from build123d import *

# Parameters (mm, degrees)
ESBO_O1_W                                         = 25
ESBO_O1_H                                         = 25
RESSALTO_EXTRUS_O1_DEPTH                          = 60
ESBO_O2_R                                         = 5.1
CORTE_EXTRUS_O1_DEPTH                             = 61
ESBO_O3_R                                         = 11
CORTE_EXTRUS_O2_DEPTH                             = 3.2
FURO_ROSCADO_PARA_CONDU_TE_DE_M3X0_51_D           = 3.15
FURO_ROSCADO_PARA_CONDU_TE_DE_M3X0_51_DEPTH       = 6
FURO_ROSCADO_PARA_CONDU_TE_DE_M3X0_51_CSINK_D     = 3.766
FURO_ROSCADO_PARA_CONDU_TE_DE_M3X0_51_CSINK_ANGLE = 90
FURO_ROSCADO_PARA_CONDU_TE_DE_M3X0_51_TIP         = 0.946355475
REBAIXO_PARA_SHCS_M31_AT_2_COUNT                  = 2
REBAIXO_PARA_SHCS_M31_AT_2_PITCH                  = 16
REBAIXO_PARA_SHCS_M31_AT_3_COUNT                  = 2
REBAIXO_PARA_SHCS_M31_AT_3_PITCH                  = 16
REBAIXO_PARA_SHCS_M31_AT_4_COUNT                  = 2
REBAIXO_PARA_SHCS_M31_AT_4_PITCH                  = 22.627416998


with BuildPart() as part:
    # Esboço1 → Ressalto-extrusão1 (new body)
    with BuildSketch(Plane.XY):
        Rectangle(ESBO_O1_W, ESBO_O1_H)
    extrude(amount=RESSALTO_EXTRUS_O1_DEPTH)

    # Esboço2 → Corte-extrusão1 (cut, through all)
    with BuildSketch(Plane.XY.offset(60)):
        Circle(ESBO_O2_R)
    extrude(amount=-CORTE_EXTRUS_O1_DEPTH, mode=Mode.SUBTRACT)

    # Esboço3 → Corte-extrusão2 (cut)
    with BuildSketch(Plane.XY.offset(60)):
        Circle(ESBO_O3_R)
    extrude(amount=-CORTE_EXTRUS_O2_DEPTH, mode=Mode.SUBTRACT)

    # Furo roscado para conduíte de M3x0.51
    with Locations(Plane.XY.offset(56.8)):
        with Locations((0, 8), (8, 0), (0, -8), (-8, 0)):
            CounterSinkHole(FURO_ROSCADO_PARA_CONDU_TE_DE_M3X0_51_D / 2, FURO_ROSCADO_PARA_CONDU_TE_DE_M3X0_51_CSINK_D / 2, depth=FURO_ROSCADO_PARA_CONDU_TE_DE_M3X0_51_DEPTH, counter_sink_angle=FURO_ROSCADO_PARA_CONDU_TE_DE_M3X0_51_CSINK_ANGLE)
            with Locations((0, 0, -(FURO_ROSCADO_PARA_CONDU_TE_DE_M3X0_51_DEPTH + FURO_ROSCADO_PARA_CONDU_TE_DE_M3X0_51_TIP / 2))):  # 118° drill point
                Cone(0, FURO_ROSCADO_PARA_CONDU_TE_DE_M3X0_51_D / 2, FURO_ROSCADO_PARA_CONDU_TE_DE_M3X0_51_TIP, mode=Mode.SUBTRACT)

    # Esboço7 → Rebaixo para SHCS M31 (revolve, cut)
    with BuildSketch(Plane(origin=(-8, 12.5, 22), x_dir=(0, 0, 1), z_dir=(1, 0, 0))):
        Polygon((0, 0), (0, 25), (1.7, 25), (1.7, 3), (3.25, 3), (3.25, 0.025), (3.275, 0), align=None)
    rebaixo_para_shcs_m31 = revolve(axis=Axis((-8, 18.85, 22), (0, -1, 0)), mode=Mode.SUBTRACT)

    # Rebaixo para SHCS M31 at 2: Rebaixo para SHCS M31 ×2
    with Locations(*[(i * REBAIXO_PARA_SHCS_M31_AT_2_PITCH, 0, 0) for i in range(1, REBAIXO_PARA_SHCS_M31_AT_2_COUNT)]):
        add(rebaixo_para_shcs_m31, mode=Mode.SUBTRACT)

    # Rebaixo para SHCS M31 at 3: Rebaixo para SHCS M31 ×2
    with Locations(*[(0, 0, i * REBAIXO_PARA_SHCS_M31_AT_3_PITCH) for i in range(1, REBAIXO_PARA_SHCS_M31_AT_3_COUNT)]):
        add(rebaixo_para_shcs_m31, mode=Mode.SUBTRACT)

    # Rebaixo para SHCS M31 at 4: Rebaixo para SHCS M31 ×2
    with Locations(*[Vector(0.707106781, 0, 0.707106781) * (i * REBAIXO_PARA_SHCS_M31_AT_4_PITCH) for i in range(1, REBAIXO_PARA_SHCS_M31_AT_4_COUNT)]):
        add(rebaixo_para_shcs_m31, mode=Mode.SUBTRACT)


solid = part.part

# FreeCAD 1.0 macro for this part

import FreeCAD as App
import Part
import Sketcher
from FreeCAD import Vector
Q = App.Units.Quantity

doc = App.newDocument("Part")
body = doc.addObject("PartDesign::Body", "Body")

sketch1 = body.newObject("Sketcher::SketchObject", "Sketch")
sketch1.AttachmentSupport = (doc.getObject("XY_Plane"), [""])
sketch1.MapMode = "FlatFace"
sketch1.addGeometry(Part.LineSegment(Vector(-12.5, 12.5, 0), Vector(-12.5, -12.5, 0)), False)
sketch1.addGeometry(Part.LineSegment(Vector(-12.5, -12.5, 0), Vector(12.5, -12.5, 0)), False)
sketch1.addGeometry(Part.LineSegment(Vector(12.5, -12.5, 0), Vector(12.5, 12.5, 0)), False)
sketch1.addGeometry(Part.LineSegment(Vector(12.5, 12.5, 0), Vector(-12.5, 12.5, 0)), False)
sketch1.addConstraint(Sketcher.Constraint("Coincident", 0, 2, 1, 1))
sketch1.addConstraint(Sketcher.Constraint("Coincident", 1, 2, 2, 1))
sketch1.addConstraint(Sketcher.Constraint("Coincident", 2, 2, 3, 1))
sketch1.addConstraint(Sketcher.Constraint("Coincident", 3, 2, 0, 1))
sketch1.addConstraint(Sketcher.Constraint("Vertical", 0))
sketch1.addConstraint(Sketcher.Constraint("Horizontal", 1))
sketch1.addConstraint(Sketcher.Constraint("Vertical", 2))
sketch1.addConstraint(Sketcher.Constraint("Horizontal", 3))
sketch1.addConstraint(Sketcher.Constraint("Symmetric", 0, 2, 2, 2, -1, 1))
sketch1.addConstraint(Sketcher.Constraint("Equal", 3, 0))
sketch1.addConstraint(Sketcher.Constraint("DistanceX", 1, 1, 1, 2, 25.0))
pad1 = body.newObject("PartDesign::Pad", "Pad")
pad1.Profile = sketch1
pad1.Length = 60

sketch2 = body.newObject("Sketcher::SketchObject", "Sketch001")
sketch2.AttachmentSupport = (doc.getObject("XY_Plane"), [""])
sketch2.MapMode = "FlatFace"
sketch2.AttachmentOffset = App.Placement(Vector(0, 0, 60), App.Rotation())
sketch2.addGeometry(Part.Circle(Vector(0, 0, 0), Vector(0, 0, 1), 5.1), False)
sketch2.addConstraint(Sketcher.Constraint("Coincident", 0, 3, -1, 1))
sketch2.addConstraint(Sketcher.Constraint("Diameter", 0, 10.2))
pocket1 = body.newObject("PartDesign::Pocket", "Pocket")
pocket1.Profile = sketch2
pocket1.Type = "ThroughAll"

sketch3 = body.newObject("Sketcher::SketchObject", "Sketch002")
sketch3.AttachmentSupport = (doc.getObject("XY_Plane"), [""])
sketch3.MapMode = "FlatFace"
sketch3.AttachmentOffset = App.Placement(Vector(0, 0, 60), App.Rotation())
sketch3.addGeometry(Part.Circle(Vector(0, 0, 0), Vector(0, 0, 1), 11), False)
sketch3.addConstraint(Sketcher.Constraint("Coincident", 0, 3, -1, 1))
sketch3.addConstraint(Sketcher.Constraint("Diameter", 0, 22.0))
pocket2 = body.newObject("PartDesign::Pocket", "Pocket001")
pocket2.Profile = sketch3
pocket2.Length = 3.2

sketch4 = body.newObject("Sketcher::SketchObject", "Sketch003")
sketch4.AttachmentSupport = (doc.getObject("XY_Plane"), [""])
sketch4.MapMode = "FlatFace"
sketch4.AttachmentOffset = App.Placement(Vector(0, 0, 56.8), App.Rotation())
sketch4.addGeometry(Part.Circle(Vector(0, 8, 0), Vector(0, 0, 1), 1.575), False)
sketch4.addGeometry(Part.Circle(Vector(8, 0, 0), Vector(0, 0, 1), 1.575), False)
sketch4.addGeometry(Part.Circle(Vector(0, -8, 0), Vector(0, 0, 1), 1.575), False)
sketch4.addGeometry(Part.Circle(Vector(-8, 0, 0), Vector(0, 0, 1), 1.575), False)
sketch4.addConstraint(Sketcher.Constraint("Equal", 0, 1))
sketch4.addConstraint(Sketcher.Constraint("Equal", 1, 2))
sketch4.addConstraint(Sketcher.Constraint("Equal", 2, 3))
sketch4.addConstraint(Sketcher.Constraint("Symmetric", 0, 3, 2, 3, -1, 1))
sketch4.addConstraint(Sketcher.Constraint("Symmetric", 1, 3, 3, 3, -1, 1))
sketch4.addConstraint(Sketcher.Constraint("PointOnObject", 0, 3, -2))
sketch4.addConstraint(Sketcher.Constraint("PointOnObject", 1, 3, -1))
sketch4.addConstraint(Sketcher.Constraint("Diameter", 0, 3.15))
sketch4.addConstraint(Sketcher.Constraint("DistanceY", -1, 1, 0, 3, 8.0))
sketch4.addConstraint(Sketcher.Constraint("DistanceX", -1, 1, 1, 3, 8.0))
doc.recompute()
hole = body.newObject("PartDesign::Hole", "Hole")
hole.Profile = sketch4
hole.ThreadType = "None"
hole.Diameter = 3.15
hole.DepthType = "Dimension"
hole.Depth = 6
hole.DrillPoint = "Angled"
hole.DrillPointAngle = 118
hole.HoleCutType = "Countersink"
hole.HoleCutDiameter = 3.766
hole.HoleCutCountersinkAngle = 90

sketch5 = body.newObject("Sketcher::SketchObject", "Sketch004")
sketch5.AttachmentSupport = (doc.getObject("YZ_Plane"), [""])
sketch5.MapMode = "FlatFace"
sketch5.AttachmentOffset = App.Placement(Vector(0, 0, -8), App.Rotation())
sketch5.addGeometry(Part.LineSegment(Vector(-12.5, 22, 0), Vector(12.5, 22, 0)), False)
sketch5.addGeometry(Part.LineSegment(Vector(12.5, 22, 0), Vector(12.5, 25.275, 0)), False)
sketch5.addGeometry(Part.LineSegment(Vector(12.5, 25.275, 0), Vector(12.475, 25.25, 0)), False)
sketch5.addGeometry(Part.LineSegment(Vector(12.475, 25.25, 0), Vector(9.5, 25.25, 0)), False)
sketch5.addGeometry(Part.LineSegment(Vector(9.5, 25.25, 0), Vector(9.5, 23.7, 0)), False)
sketch5.addGeometry(Part.LineSegment(Vector(9.5, 23.7, 0), Vector(-12.5, 23.7, 0)), False)
sketch5.addGeometry(Part.LineSegment(Vector(-12.5, 23.7, 0), Vector(-12.5, 22, 0)), False)
sketch5.addGeometry(Part.LineSegment(Vector(12.5, 22, 0), Vector(-12.5, 22, 0)), True)
sketch5.addConstraint(Sketcher.Constraint("Coincident", 0, 2, 1, 1))
sketch5.addConstraint(Sketcher.Constraint("Coincident", 1, 2, 2, 1))
sketch5.addConstraint(Sketcher.Constraint("Coincident", 2, 2, 3, 1))
sketch5.addConstraint(Sketcher.Constraint("Coincident", 3, 2, 4, 1))
sketch5.addConstraint(Sketcher.Constraint("Coincident", 4, 2, 5, 1))
sketch5.addConstraint(Sketcher.Constraint("Coincident", 5, 2, 6, 1))
sketch5.addConstraint(Sketcher.Constraint("Coincident", 6, 2, 0, 1))
sketch5.addConstraint(Sketcher.Constraint("Horizontal", 0))
sketch5.addConstraint(Sketcher.Constraint("Vertical", 1))
sketch5.addConstraint(Sketcher.Constraint("Horizontal", 3))
sketch5.addConstraint(Sketcher.Constraint("Vertical", 4))
sketch5.addConstraint(Sketcher.Constraint("Horizontal", 5))
sketch5.addConstraint(Sketcher.Constraint("Vertical", 6))
sketch5.addConstraint(Sketcher.Constraint("Horizontal", 7))
sketch5.addConstraint(Sketcher.Constraint("Coincident", 7, 1, 0, 2))
sketch5.addConstraint(Sketcher.Constraint("Vertical", 5, 2, 7, 2))
sketch5.addConstraint(Sketcher.Constraint("DistanceX", 0, 1, 0, 2, 25.0))
sketch5.addConstraint(Sketcher.Constraint("DistanceX", 5, 2, 5, 1, 22.0))
sketch5.addConstraint(Sketcher.Constraint("Angle", 2, Q("-135 deg")))
sketch5.addConstraint(Sketcher.Constraint("DistanceY", 6, 2, 6, 1, 1.7))
sketch5.addConstraint(Sketcher.Constraint("DistanceY", -1, 1, 0, 2, 22.0))
sketch5.addConstraint(Sketcher.Constraint("DistanceY", 4, 2, 4, 1, 1.55))
sketch5.addConstraint(Sketcher.Constraint("DistanceX", -1, 1, 0, 2, 12.5))
sketch5.addConstraint(Sketcher.Constraint("DistanceX", 3, 2, 3, 1, 2.975))
groove = body.newObject("PartDesign::Groove", "Groove")
groove.Profile = sketch5
groove.ReferenceAxis = (sketch5, ["Axis0"])
groove.Angle = 360
doc.recompute()

linearpattern = body.newObject("PartDesign::LinearPattern", "LinearPattern")
linearpattern.Originals = [groove]
linearpattern.Direction = (doc.getObject("X_Axis"), [""])
linearpattern.Mode = "offset"
linearpattern.Offset = 16
linearpattern.Occurrences = 2
body.Tip = linearpattern
doc.recompute()

linearpattern2 = body.newObject("PartDesign::LinearPattern", "LinearPattern001")
linearpattern2.Originals = [groove]
linearpattern2.Direction = (doc.getObject("Z_Axis"), [""])
linearpattern2.Mode = "offset"
linearpattern2.Offset = 16
linearpattern2.Occurrences = 2
body.Tip = linearpattern2
doc.recompute()

datumline = body.newObject("PartDesign::Line", "DatumLine")
datumline.Placement = App.Placement(Vector(0, 0, 0), App.Rotation(Vector(0, 0, 1), Vector(0.707106781, 0, 0.707106781)))
linearpattern3 = body.newObject("PartDesign::LinearPattern", "LinearPattern002")
linearpattern3.Originals = [groove]
linearpattern3.Direction = (datumline, [""])
linearpattern3.Mode = "offset"
linearpattern3.Offset = 22.627417
linearpattern3.Occurrences = 2
body.Tip = linearpattern3

doc.recompute()
